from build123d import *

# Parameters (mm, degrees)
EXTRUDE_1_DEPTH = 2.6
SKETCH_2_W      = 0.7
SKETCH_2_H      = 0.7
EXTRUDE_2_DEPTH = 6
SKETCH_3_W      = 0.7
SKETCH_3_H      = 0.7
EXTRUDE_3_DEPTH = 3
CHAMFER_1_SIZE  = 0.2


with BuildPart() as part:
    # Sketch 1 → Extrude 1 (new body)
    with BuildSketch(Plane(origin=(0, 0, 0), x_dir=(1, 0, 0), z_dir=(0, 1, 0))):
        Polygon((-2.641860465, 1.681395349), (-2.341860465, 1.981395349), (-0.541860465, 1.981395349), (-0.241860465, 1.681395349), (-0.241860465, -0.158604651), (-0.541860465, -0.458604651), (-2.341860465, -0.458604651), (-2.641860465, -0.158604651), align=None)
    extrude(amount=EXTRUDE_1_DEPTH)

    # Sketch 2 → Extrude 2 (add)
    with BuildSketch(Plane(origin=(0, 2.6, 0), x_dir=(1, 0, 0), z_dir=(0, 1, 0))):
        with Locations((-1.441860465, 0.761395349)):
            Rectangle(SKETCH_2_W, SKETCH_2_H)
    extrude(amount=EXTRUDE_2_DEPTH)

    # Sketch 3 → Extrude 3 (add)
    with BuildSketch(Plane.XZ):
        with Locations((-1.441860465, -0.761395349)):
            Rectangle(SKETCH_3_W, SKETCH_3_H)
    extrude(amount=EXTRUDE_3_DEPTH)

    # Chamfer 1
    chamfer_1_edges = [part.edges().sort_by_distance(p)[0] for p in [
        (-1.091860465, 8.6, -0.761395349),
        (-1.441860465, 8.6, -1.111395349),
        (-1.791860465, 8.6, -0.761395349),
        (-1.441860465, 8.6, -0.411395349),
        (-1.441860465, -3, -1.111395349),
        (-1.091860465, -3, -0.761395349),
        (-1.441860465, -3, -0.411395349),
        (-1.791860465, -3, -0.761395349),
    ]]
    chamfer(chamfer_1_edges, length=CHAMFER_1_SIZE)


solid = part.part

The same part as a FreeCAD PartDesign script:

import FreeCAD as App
import Part
import Sketcher
from FreeCAD import Vector
Q = App.Units.Quantity


def edges_at(feature, points):
    """Names of the edges that pass closest to the given points."""
    edges = feature.Shape.Edges
    near = lambda p: min(range(len(edges)), key=lambda i: edges[i].distToShape(Part.Vertex(*p))[0])
    return sorted({f"Edge{near(p) + 1}" for p in points})


def add_polygon(sketch, points):
    """Adds a closed chain of lines whose ends are joined by coincident constraints."""
    first, n = sketch.GeometryCount, len(points)
    for a, b in zip(points, points[1:] + points[:1]):
        sketch.addGeometry(Part.LineSegment(App.Vector(*a, 0), App.Vector(*b, 0)), False)
    for i in range(n):
        sketch.addConstraint(Sketcher.Constraint("Coincident", first + i, 2, first + (i + 1) % n, 1))

doc = App.newDocument("Part")
body = doc.addObject("PartDesign::Body", "Body")

# Sketch on XZ plane
sketch1 = body.newObject("Sketcher::SketchObject", "Sketch")
sketch1.AttachmentSupport = (doc.getObject("XZ_Plane"), [""])
sketch1.MapMode = "FlatFace"
add_polygon(sketch1, [(-2.34, -1.98), (-2.64, -1.68), (-2.64, 0.16), (-2.34, 0.46), (-0.54, 0.46), (-0.24, 0.16), (-0.24, -1.68), (-0.54, -1.98)])  # lines 0-7
sketch1.addConstraint([
    Sketcher.Constraint("Vertical", 1),
    Sketcher.Constraint("Horizontal", 3),
    Sketcher.Constraint("Vertical", 5),
    Sketcher.Constraint("Horizontal", 7),
    Sketcher.Constraint("Perpendicular", 0, 2),
    Sketcher.Constraint("Perpendicular", 2, 4),
    Sketcher.Constraint("Perpendicular", 4, 6),
    Sketcher.Constraint("Horizontal", 1, 2, 4, 2),
    Sketcher.Constraint("Horizontal", 0, 2, 5, 2),
    Sketcher.Constraint("Vertical", 3, 2, 6, 2),
    Sketcher.Constraint("Vertical", 2, 2, 7, 2),
    Sketcher.Constraint("DistanceX", 3, 1, 3, 2, Q("1.8 mm")),
    Sketcher.Constraint("DistanceY", 1, 1, 1, 2, Q("1.84 mm")),
    Sketcher.Constraint("DistanceX", 1, 2, 2, 2, Q("0.3 mm")),
    Sketcher.Constraint("DistanceX", 0, 2, -1, 1, Q("2.64186 mm")),
    Sketcher.Constraint("DistanceY", 0, 2, -1, 1, Q("1.681395 mm")),
])
pad1 = body.newObject("PartDesign::Pad", "Pad")
pad1.Profile = sketch1
pad1.Length = 2.6
pad1.Reversed = True

# Sketch on XZ plane
sketch2 = body.newObject("Sketcher::SketchObject", "Sketch001")
sketch2.AttachmentSupport = (doc.getObject("XZ_Plane"), [""])
sketch2.MapMode = "FlatFace"
sketch2.AttachmentOffset = App.Placement(Vector(0, 0, -2.6), App.Rotation())
add_polygon(sketch2, [(-1.8, -1.1), (-1.8, -0.4), (-1.1, -0.4), (-1.1, -1.1)])  # lines 0-3
sketch2.addConstraint([
    Sketcher.Constraint("Vertical", 0),
    Sketcher.Constraint("Horizontal", 1),
    Sketcher.Constraint("Vertical", 2),
    Sketcher.Constraint("Horizontal", 3),
    Sketcher.Constraint("Equal", 3, 0),
    Sketcher.Constraint("DistanceX", 1, 1, 1, 2, Q("0.7 mm")),
    Sketcher.Constraint("DistanceX", 0, 2, -1, 1, Q("1.79186 mm")),
    Sketcher.Constraint("DistanceY", 0, 2, -1, 1, Q("0.411395 mm")),
])
pad2 = body.newObject("PartDesign::Pad", "Pad001")
pad2.Profile = sketch2
pad2.Length = 6
pad2.Reversed = True

# Sketch on XZ plane
sketch3 = body.newObject("Sketcher::SketchObject", "Sketch002")
sketch3.AttachmentSupport = (doc.getObject("XZ_Plane"), [""])
sketch3.MapMode = "FlatFace"
add_polygon(sketch3, [(-1.8, -0.4), (-1.8, -1.1), (-1.1, -1.1), (-1.1, -0.4)])  # lines 0-3
sketch3.addConstraint([
    Sketcher.Constraint("Vertical", 0),
    Sketcher.Constraint("Horizontal", 1),
    Sketcher.Constraint("Vertical", 2),
    Sketcher.Constraint("Horizontal", 3),
    Sketcher.Constraint("Equal", 3, 0),
    Sketcher.Constraint("DistanceX", 1, 1, 1, 2, Q("0.7 mm")),
    Sketcher.Constraint("DistanceX", 0, 2, -1, 1, Q("1.79186 mm")),
    Sketcher.Constraint("DistanceY", 0, 2, -1, 1, Q("1.111395 mm")),
])
pad3 = body.newObject("PartDesign::Pad", "Pad002")
pad3.Profile = sketch3
pad3.Length = 3
doc.recompute()

chamfer = body.newObject("PartDesign::Chamfer", "Chamfer")
chamfer.Base = (pad3, edges_at(pad3, [
    (-1.092, 8.6, -0.761),
    (-1.442, 8.6, -1.111),
    (-1.792, 8.6, -0.761),
    (-1.442, 8.6, -0.411),
    (-1.442, -3, -1.111),
    (-1.092, -3, -0.761),
    (-1.442, -3, -0.411),
    (-1.792, -3, -0.761),
]))
chamfer.Size = 0.2

doc.recompute()
